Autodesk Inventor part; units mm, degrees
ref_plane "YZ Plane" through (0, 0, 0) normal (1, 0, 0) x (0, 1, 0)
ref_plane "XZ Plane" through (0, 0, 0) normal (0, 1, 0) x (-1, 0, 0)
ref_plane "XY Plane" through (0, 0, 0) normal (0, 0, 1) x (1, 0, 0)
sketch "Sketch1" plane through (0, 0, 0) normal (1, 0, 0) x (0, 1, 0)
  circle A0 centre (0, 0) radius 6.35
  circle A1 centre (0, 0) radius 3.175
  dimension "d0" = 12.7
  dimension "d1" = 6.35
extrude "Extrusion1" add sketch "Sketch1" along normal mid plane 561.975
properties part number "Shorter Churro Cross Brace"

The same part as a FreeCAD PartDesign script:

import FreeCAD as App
import Part
import Sketcher
from FreeCAD import Vector
Q = App.Units.Quantity

doc = App.newDocument("Part")
body = doc.addObject("PartDesign::Body", "Body")

# Sketch on YZ plane
sketch1 = body.newObject("Sketcher::SketchObject", "Sketch")
sketch1.AttachmentSupport = (doc.getObject("YZ_Plane"), [""])
sketch1.MapMode = "FlatFace"
sketch1.addGeometry([
    Part.Circle(Vector(0, 0, 0), Vector(0, 0, 1), 6.35),
    Part.Circle(Vector(0, 0, 0), Vector(0, 0, 1), 3.175),
], False)
sketch1.addConstraint([
    Sketcher.Constraint("Coincident", 0, 3, -1, 1),
    Sketcher.Constraint("Coincident", 1, 3, -1, 1),
    Sketcher.Constraint("Diameter", 0, Q("0.5 in")),
    Sketcher.Constraint("Diameter", 1, Q("0.25 in")),
])
pad1 = body.newObject("PartDesign::Pad", "Pad")
pad1.Profile = sketch1
pad1.Length = Q("22.125 in")
pad1.Midplane = True

doc.recompute()
